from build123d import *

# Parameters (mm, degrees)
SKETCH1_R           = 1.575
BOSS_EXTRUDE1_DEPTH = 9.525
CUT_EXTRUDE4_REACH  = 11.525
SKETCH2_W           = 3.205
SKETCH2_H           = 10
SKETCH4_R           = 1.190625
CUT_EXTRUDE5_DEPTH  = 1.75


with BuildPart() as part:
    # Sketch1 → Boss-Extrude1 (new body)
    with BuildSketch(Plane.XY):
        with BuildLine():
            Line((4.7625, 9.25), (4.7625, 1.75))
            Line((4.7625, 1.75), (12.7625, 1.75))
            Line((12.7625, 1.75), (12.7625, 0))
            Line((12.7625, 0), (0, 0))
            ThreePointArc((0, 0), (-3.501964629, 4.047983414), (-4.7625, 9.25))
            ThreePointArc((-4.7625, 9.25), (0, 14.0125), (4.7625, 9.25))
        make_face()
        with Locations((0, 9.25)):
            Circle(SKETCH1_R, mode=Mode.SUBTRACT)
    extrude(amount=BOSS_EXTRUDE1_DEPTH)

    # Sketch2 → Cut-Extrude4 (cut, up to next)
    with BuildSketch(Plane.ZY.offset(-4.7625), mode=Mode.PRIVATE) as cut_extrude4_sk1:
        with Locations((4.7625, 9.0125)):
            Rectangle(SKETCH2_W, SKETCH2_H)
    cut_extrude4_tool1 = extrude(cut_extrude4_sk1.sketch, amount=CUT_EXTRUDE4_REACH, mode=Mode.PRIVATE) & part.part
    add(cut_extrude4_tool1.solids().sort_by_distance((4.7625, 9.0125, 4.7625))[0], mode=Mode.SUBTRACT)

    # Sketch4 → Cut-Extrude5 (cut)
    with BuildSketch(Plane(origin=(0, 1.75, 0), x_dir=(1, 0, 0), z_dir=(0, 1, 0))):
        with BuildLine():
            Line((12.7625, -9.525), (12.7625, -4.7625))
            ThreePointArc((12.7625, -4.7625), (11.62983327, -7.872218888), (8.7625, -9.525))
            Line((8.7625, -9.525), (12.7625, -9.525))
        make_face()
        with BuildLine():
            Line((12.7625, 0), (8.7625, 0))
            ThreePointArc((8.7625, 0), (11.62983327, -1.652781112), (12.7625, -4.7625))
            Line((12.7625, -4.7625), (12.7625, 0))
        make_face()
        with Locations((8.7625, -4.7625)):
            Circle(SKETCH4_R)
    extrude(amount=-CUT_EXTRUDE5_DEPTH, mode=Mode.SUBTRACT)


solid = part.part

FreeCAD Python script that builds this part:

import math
import FreeCAD as App
import Part
import Sketcher
Q = App.Units.Quantity

doc = App.newDocument("Part")
body = doc.addObject("PartDesign::Body", "Body")

# Sketch on XY plane
sketch1 = body.newObject("Sketcher::SketchObject", "Sketch")
sketch1.AttachmentSupport = (doc.getObject("XY_Plane"), [""])
sketch1.MapMode = "FlatFace"
sketch1.addGeometry(Part.LineSegment(App.Vector(4.8, 1.8, 0), App.Vector(4.8, 9.2, 0)), False)
sketch1.addGeometry(Part.ArcOfCircle(Part.Circle(App.Vector(0, 9.2, 0), App.Vector(0, 0, 1), 4.8), math.radians(0), math.radians(180)), False)
sketch1.addGeometry(Part.ArcOfCircle(Part.Circle(App.Vector(6.6, 9.3, 0), App.Vector(0, 0, 1), 11.4), math.radians(-180), math.radians(-126)), False)
sketch1.addGeometry(Part.LineSegment(App.Vector(0, 0, 0), App.Vector(12.8, 0, 0)), False)
sketch1.addGeometry(Part.LineSegment(App.Vector(12.8, 0, 0), App.Vector(12.8, 1.8, 0)), False)
sketch1.addGeometry(Part.LineSegment(App.Vector(12.8, 1.8, 0), App.Vector(4.8, 1.8, 0)), False)
sketch1.addGeometry(Part.Circle(App.Vector(0, 9.2, 0), App.Vector(0, 0, 1), 1.6), False)
sketch1.addConstraint(Sketcher.Constraint("Tangent", 0, 2, 1, 1))
sketch1.addConstraint(Sketcher.Constraint("Tangent", 1, 2, 2, 1))
sketch1.addConstraint(Sketcher.Constraint("Coincident", 2, 2, 3, 1))
sketch1.addConstraint(Sketcher.Constraint("Coincident", 3, 2, 4, 1))
sketch1.addConstraint(Sketcher.Constraint("Coincident", 4, 2, 5, 1))
sketch1.addConstraint(Sketcher.Constraint("Coincident", 5, 2, 0, 1))
sketch1.addConstraint(Sketcher.Constraint("Vertical", 0))
sketch1.addConstraint(Sketcher.Constraint("Horizontal", 3))
sketch1.addConstraint(Sketcher.Constraint("Vertical", 4))
sketch1.addConstraint(Sketcher.Constraint("Horizontal", 5))
sketch1.addConstraint(Sketcher.Constraint("Coincident", 2, 2, -1, 1))
sketch1.addConstraint(Sketcher.Constraint("Coincident", 6, 3, 1, 3))
sketch1.addConstraint(Sketcher.Constraint("Symmetric", 0, 2, 1, 2, -2))
sketch1.addConstraint(Sketcher.Constraint("Diameter", 6, Q("3.15 mm")))
sketch1.addConstraint(Sketcher.Constraint("DistanceX", 5, 2, 5, 1, Q("8 mm")))
sketch1.addConstraint(Sketcher.Constraint("DistanceY", 0, 1, 0, 2, Q("7.5 mm")))
sketch1.addConstraint(Sketcher.Constraint("DistanceY", 4, 1, 4, 2, Q("1.75 mm")))
sketch1.addConstraint(Sketcher.Constraint("Radius", 1, Q("4.7625 mm")))
pad1 = body.newObject("PartDesign::Pad", "Pad")
pad1.Profile = sketch1
pad1.Length = 9.525

# Sketch on YZ plane
sketch2 = body.newObject("Sketcher::SketchObject", "Sketch001")
sketch2.AttachmentSupport = (doc.getObject("YZ_Plane"), [""])
sketch2.MapMode = "FlatFace"
sketch2.AttachmentOffset = App.Placement(App.Vector(0, 0, 4.7625), App.Rotation())
sketch2.addGeometry(Part.LineSegment(App.Vector(14, 3.2, 0), App.Vector(4, 3.2, 0)), False)
sketch2.addGeometry(Part.LineSegment(App.Vector(4, 3.2, 0), App.Vector(4, 6.4, 0)), False)
sketch2.addGeometry(Part.LineSegment(App.Vector(4, 6.4, 0), App.Vector(14, 6.4, 0)), False)
sketch2.addGeometry(Part.LineSegment(App.Vector(14, 6.4, 0), App.Vector(14, 3.2, 0)), False)
sketch2.addConstraint(Sketcher.Constraint("Coincident", 0, 2, 1, 1))
sketch2.addConstraint(Sketcher.Constraint("Coincident", 1, 2, 2, 1))
sketch2.addConstraint(Sketcher.Constraint("Coincident", 2, 2, 3, 1))
sketch2.addConstraint(Sketcher.Constraint("Coincident", 3, 2, 0, 1))
sketch2.addConstraint(Sketcher.Constraint("Horizontal", 0))
sketch2.addConstraint(Sketcher.Constraint("Vertical", 1))
sketch2.addConstraint(Sketcher.Constraint("Horizontal", 2))
sketch2.addConstraint(Sketcher.Constraint("Vertical", 3))
sketch2.addConstraint(Sketcher.Constraint("DistanceX", 0, 2, 0, 1, Q("10 mm")))
sketch2.addConstraint(Sketcher.Constraint("DistanceY", 1, 1, 1, 2, Q("3.205 mm")))
sketch2.addConstraint(Sketcher.Constraint("DistanceY", -1, 1, 0, 2, Q("3.16 mm")))
sketch2.addConstraint(Sketcher.Constraint("DistanceX", -1, 1, 0, 2, Q("4.0125 mm")))
pocket1 = body.newObject("PartDesign::Pocket", "Pocket")
pocket1.Profile = sketch2
pocket1.Type = "UpToFirst"

# Sketch on XZ plane
sketch3 = body.newObject("Sketcher::SketchObject", "Sketch002")
sketch3.AttachmentSupport = (doc.getObject("XZ_Plane"), [""])
sketch3.MapMode = "FlatFace"
sketch3.AttachmentOffset = App.Placement(App.Vector(0, 0, -1.75), App.Rotation())
sketch3.addGeometry(Part.LineSegment(App.Vector(12.8, 9.5, 0), App.Vector(12.8, 4.8, 0)), False)
sketch3.addGeometry(Part.ArcOfCircle(Part.Circle(App.Vector(7.9, 4.8, 0), App.Vector(0, 0, 1), 4.8), math.radians(0), math.radians(80)), False)
sketch3.addGeometry(Part.LineSegment(App.Vector(8.8, 9.5, 0), App.Vector(12.8, 9.5, 0)), False)
sketch3.addGeometry(Part.LineSegment(App.Vector(12.8, 0, 0), App.Vector(8.8, 0, 0)), False)
sketch3.addGeometry(Part.ArcOfCircle(Part.Circle(App.Vector(7.9, 4.8, 0), App.Vector(0, 0, 1), 4.8), math.radians(-80), math.radians(0)), False)
sketch3.addGeometry(Part.LineSegment(App.Vector(12.8, 4.8, 0), App.Vector(12.8, 0, 0)), False)
sketch3.addGeometry(Part.Circle(App.Vector(8.8, 4.8, 0), App.Vector(0, 0, 1), 1.2), False)
sketch3.addConstraint(Sketcher.Constraint("Tangent", 0, 2, 1, 1))
sketch3.addConstraint(Sketcher.Constraint("Coincident", 1, 2, 2, 1))
sketch3.addConstraint(Sketcher.Constraint("Coincident", 2, 2, 0, 1))
sketch3.addConstraint(Sketcher.Constraint("Coincident", 3, 2, 4, 1))
sketch3.addConstraint(Sketcher.Constraint("Tangent", 4, 2, 5, 1))
sketch3.addConstraint(Sketcher.Constraint("Coincident", 5, 2, 3, 1))
sketch3.addConstraint(Sketcher.Constraint("Vertical", 0))
sketch3.addConstraint(Sketcher.Constraint("Horizontal", 2))
sketch3.addConstraint(Sketcher.Constraint("Horizontal", 3))
sketch3.addConstraint(Sketcher.Constraint("Vertical", 5))
sketch3.addConstraint(Sketcher.Constraint("Coincident", 4, 3, 1, 3))
sketch3.addConstraint(Sketcher.Constraint("Equal", 1, 4))
sketch3.addConstraint(Sketcher.Constraint("PointOnObject", 3, 2, -1))
sketch3.addConstraint(Sketcher.Constraint("Horizontal", 4, 3, 6, 3))
sketch3.addConstraint(Sketcher.Constraint("Vertical", 6, 3, 1, 2))
sketch3.addConstraint(Sketcher.Constraint("Vertical", 1, 2, 3, 2))
sketch3.addConstraint(Sketcher.Constraint("DistanceX", 2, 1, 2, 2, Q("4 mm")))
sketch3.addConstraint(Sketcher.Constraint("Diameter", 6, Q("2.38125 mm")))
sketch3.addConstraint(Sketcher.Constraint("DistanceY", 0, 2, 0, 1, Q("4.7625 mm")))
sketch3.addConstraint(Sketcher.Constraint("DistanceX", -1, 1, 6, 3, Q("8.7625 mm")))
pocket2 = body.newObject("PartDesign::Pocket", "Pocket001")
pocket2.Profile = sketch3
pocket2.Length = 1.75
pocket2.Reversed = True

doc.recompute()
